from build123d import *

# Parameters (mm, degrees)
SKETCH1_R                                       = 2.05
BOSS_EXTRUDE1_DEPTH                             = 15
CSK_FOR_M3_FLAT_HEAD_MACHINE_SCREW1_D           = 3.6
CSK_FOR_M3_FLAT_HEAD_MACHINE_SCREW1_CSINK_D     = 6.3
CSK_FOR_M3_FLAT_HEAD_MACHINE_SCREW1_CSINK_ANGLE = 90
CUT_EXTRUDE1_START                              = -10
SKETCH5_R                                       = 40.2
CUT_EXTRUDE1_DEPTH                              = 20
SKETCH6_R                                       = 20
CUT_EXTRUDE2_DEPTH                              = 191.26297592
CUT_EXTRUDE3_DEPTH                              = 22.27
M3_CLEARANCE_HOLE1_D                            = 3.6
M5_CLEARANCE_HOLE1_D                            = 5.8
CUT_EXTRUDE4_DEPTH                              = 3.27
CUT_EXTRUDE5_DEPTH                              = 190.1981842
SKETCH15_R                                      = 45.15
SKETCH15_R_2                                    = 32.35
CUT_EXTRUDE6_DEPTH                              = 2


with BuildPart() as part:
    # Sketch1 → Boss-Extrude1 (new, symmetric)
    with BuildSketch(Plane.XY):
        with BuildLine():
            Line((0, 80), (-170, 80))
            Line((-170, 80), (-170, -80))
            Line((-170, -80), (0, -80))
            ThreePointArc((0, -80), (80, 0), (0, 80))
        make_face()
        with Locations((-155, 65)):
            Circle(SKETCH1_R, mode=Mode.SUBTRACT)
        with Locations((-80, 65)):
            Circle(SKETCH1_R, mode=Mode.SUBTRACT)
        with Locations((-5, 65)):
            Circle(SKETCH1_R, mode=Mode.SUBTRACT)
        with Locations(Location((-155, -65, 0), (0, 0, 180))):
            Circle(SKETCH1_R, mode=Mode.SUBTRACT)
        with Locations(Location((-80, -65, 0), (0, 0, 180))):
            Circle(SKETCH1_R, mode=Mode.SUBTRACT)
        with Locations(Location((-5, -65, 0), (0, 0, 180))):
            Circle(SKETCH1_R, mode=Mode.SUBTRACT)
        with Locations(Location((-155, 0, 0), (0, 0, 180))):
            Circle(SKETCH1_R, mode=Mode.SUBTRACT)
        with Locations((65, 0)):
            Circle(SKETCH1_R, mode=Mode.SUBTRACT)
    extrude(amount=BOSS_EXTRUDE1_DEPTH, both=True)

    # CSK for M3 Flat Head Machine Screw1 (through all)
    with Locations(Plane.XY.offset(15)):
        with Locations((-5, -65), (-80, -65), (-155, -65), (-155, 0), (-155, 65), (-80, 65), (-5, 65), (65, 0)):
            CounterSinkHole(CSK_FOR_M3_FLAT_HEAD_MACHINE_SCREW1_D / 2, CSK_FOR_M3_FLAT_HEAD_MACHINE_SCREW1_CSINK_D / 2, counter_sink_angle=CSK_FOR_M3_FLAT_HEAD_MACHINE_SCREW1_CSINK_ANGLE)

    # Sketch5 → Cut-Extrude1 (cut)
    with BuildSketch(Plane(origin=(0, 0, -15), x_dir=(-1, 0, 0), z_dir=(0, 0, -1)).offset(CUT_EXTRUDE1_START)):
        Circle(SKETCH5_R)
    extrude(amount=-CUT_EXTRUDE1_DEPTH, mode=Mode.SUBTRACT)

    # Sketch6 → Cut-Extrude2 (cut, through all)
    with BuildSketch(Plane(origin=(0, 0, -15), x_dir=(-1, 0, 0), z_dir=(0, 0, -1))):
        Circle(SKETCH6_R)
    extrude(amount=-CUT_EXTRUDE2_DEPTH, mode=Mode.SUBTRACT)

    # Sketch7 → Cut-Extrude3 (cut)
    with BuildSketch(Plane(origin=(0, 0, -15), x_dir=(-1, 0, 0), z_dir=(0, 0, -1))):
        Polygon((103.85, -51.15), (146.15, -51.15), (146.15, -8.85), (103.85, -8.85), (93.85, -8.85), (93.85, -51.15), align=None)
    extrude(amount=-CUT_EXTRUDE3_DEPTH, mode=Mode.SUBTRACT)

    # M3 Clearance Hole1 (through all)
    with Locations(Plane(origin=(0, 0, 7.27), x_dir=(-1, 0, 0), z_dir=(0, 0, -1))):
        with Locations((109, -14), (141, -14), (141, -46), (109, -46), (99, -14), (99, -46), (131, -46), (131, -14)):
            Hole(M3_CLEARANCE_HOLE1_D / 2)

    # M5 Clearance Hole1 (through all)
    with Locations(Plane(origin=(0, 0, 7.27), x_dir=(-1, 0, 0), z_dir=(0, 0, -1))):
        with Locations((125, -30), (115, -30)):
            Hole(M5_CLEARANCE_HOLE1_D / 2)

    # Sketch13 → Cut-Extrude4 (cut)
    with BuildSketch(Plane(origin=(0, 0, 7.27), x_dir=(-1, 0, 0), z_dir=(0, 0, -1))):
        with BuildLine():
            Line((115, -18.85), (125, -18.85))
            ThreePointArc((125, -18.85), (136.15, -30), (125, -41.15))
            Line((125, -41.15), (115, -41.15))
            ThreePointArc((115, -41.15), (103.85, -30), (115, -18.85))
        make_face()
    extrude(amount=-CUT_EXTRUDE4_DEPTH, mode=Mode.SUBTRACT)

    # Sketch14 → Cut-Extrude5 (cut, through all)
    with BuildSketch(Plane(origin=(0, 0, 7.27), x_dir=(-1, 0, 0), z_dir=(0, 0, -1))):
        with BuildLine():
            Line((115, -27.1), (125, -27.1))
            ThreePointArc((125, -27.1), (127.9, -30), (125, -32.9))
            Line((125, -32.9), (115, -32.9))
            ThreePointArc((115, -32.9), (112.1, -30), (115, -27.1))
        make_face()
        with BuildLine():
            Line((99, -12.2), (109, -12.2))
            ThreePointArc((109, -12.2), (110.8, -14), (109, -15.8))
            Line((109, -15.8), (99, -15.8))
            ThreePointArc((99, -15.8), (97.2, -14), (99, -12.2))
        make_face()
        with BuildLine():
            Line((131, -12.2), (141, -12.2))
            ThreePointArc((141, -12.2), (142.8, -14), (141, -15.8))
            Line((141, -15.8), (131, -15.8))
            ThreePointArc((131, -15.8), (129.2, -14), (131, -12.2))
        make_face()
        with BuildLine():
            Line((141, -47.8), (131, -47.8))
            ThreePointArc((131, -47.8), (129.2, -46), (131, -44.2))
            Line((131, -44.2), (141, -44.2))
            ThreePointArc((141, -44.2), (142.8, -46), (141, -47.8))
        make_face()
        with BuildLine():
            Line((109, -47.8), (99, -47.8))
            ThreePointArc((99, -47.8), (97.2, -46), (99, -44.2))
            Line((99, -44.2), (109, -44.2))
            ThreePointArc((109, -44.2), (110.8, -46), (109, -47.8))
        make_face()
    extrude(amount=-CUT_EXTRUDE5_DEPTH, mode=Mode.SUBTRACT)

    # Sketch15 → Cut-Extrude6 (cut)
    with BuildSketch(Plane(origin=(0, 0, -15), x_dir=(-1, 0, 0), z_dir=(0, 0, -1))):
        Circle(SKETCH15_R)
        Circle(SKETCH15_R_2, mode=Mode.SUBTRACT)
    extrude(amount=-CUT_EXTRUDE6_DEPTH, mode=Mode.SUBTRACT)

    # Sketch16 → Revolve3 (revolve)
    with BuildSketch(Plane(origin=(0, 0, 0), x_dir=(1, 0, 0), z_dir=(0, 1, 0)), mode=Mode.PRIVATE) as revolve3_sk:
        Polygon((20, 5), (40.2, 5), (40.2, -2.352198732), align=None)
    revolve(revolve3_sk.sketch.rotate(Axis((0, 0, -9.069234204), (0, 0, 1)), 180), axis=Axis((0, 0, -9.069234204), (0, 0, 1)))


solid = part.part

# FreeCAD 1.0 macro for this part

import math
import FreeCAD as App
import Part
import Sketcher
Q = App.Units.Quantity


def add_polygon(sketch, points):
    """Adds a closed chain of lines whose ends are joined by coincident constraints."""
    first, n = sketch.GeometryCount, len(points)
    for a, b in zip(points, points[1:] + points[:1]):
        sketch.addGeometry(Part.LineSegment(App.Vector(*a, 0), App.Vector(*b, 0)), False)
    for i in range(n):
        sketch.addConstraint(Sketcher.Constraint("Coincident", first + i, 2, first + (i + 1) % n, 1))

doc = App.newDocument("Part")
body = doc.addObject("PartDesign::Body", "Body")

sketch1 = doc.addObject("Sketcher::SketchObject", "Sketch")
body.addObject(sketch1)
sketch1.AttachmentSupport = (doc.XY_Plane, [""])
sketch1.MapMode = "FlatFace"
sketch1.addGeometry([
    Part.LineSegment(App.Vector(0, 80, 0), App.Vector(-170, 80, 0)),
    Part.LineSegment(App.Vector(-170, 80, 0), App.Vector(-170, -80, 0)),
    Part.LineSegment(App.Vector(-170, -80, 0), App.Vector(0, -80, 0)),
    Part.ArcOfCircle(Part.Circle(App.Vector(0, 0, 0), App.Vector(0, 0, 1), 80), math.radians(-90), math.radians(90)),
    Part.Circle(App.Vector(-155, -65, 0), App.Vector(0, 0, 1), 2),
    Part.Circle(App.Vector(-80, -65, 0), App.Vector(0, 0, 1), 2),
    Part.Circle(App.Vector(-5, -65, 0), App.Vector(0, 0, 1), 2),
    Part.Circle(App.Vector(-155, 0, 0), App.Vector(0, 0, 1), 2),
    Part.Circle(App.Vector(-155, 65, 0), App.Vector(0, 0, 1), 2),
    Part.Circle(App.Vector(-80, 65, 0), App.Vector(0, 0, 1), 2),
    Part.Circle(App.Vector(65, 0, 0), App.Vector(0, 0, 1), 2),
    Part.Circle(App.Vector(-5, 65, 0), App.Vector(0, 0, 1), 2),
], False)
sketch1.addConstraint([
    Sketcher.Constraint("Coincident", 0, 2, 1, 1),
    Sketcher.Constraint("Coincident", 1, 2, 2, 1),
    Sketcher.Constraint("Tangent", 2, 2, 3, 1),
    Sketcher.Constraint("Tangent", 3, 2, 0, 1),
    Sketcher.Constraint("Horizontal", 0),
    Sketcher.Constraint("Vertical", 1),
    Sketcher.Constraint("Horizontal", 2),
    Sketcher.Constraint("Coincident", 3, 3, -1, 1),
    Sketcher.Constraint("Equal", 4, 5),
    Sketcher.Constraint("Equal", 5, 6),
    Sketcher.Constraint("Equal", 6, 7),
    Sketcher.Constraint("Equal", 7, 8),
    Sketcher.Constraint("Equal", 8, 9),
    Sketcher.Constraint("Equal", 9, 10),
    Sketcher.Constraint("Equal", 10, 11),
    Sketcher.Constraint("Symmetric", 4, 3, 8, 3, -1),
    Sketcher.Constraint("Symmetric", 5, 3, 9, 3, -1),
    Sketcher.Constraint("Symmetric", 6, 3, 11, 3, -1),
    Sketcher.Constraint("PointOnObject", 7, 3, -1),
    Sketcher.Constraint("PointOnObject", 10, 3, -1),
    Sketcher.Constraint("Horizontal", 4, 3, 5, 3),
    Sketcher.Constraint("Horizontal", 5, 3, 6, 3),
    Sketcher.Constraint("Vertical", 4, 3, 7, 3),
    Sketcher.Constraint("Radius", 3, 80.0),
    Sketcher.Constraint("Diameter", 4, 4.1),
    Sketcher.Constraint("DistanceX", 0, 2, 0, 1, 170.0),
    Sketcher.Constraint("DistanceX", 4, 3, -1, 1, 155.0),
    Sketcher.Constraint("DistanceY", 4, 3, -1, 1, 65.0),
    Sketcher.Constraint("DistanceX", 5, 3, -1, 1, 80.0),
    Sketcher.Constraint("DistanceX", 6, 3, -1, 1, 5.0),
    Sketcher.Constraint("DistanceX", -1, 1, 10, 3, 65.0),
])
pad1 = doc.addObject("PartDesign::Pad", "Pad")
body.addObject(pad1)
pad1.Profile = sketch1
pad1.Length = 30
pad1.Midplane = True

sketch2 = doc.addObject("Sketcher::SketchObject", "Sketch001")
body.addObject(sketch2)
sketch2.AttachmentSupport = (doc.XY_Plane, [""])
sketch2.MapMode = "FlatFace"
sketch2.AttachmentOffset = App.Placement(App.Vector(0, 0, 15), App.Rotation())
sketch2.addGeometry([
    Part.Circle(App.Vector(-5, -65, 0), App.Vector(0, 0, 1), 1.8),
    Part.Circle(App.Vector(-80, -65, 0), App.Vector(0, 0, 1), 1.8),
    Part.Circle(App.Vector(-155, -65, 0), App.Vector(0, 0, 1), 1.8),
    Part.Circle(App.Vector(-155, 0, 0), App.Vector(0, 0, 1), 1.8),
    Part.Circle(App.Vector(-155, 65, 0), App.Vector(0, 0, 1), 1.8),
    Part.Circle(App.Vector(-80, 65, 0), App.Vector(0, 0, 1), 1.8),
    Part.Circle(App.Vector(-5, 65, 0), App.Vector(0, 0, 1), 1.8),
    Part.Circle(App.Vector(65, 0, 0), App.Vector(0, 0, 1), 1.8),
], False)
sketch2.addConstraint([
    Sketcher.Constraint("Equal", 0, 1),
    Sketcher.Constraint("Equal", 1, 2),
    Sketcher.Constraint("Equal", 2, 3),
    Sketcher.Constraint("Equal", 3, 4),
    Sketcher.Constraint("Equal", 4, 5),
    Sketcher.Constraint("Equal", 5, 6),
    Sketcher.Constraint("Equal", 6, 7),
    Sketcher.Constraint("Symmetric", 2, 3, 4, 3, -1),
    Sketcher.Constraint("Symmetric", 1, 3, 5, 3, -1),
    Sketcher.Constraint("Symmetric", 0, 3, 6, 3, -1),
    Sketcher.Constraint("PointOnObject", 3, 3, -1),
    Sketcher.Constraint("PointOnObject", 7, 3, -1),
    Sketcher.Constraint("Horizontal", 0, 3, 1, 3),
    Sketcher.Constraint("Horizontal", 1, 3, 2, 3),
    Sketcher.Constraint("Vertical", 2, 3, 3, 3),
    Sketcher.Constraint("Diameter", 0, 3.6),
    Sketcher.Constraint("DistanceX", 0, 3, -1, 1, 5.0),
    Sketcher.Constraint("DistanceY", 0, 3, -1, 1, 65.0),
    Sketcher.Constraint("DistanceX", 1, 3, -1, 1, 80.0),
    Sketcher.Constraint("DistanceX", 2, 3, -1, 1, 155.0),
    Sketcher.Constraint("DistanceX", -1, 1, 7, 3, 65.0),
])
doc.recompute()
hole = doc.addObject("PartDesign::Hole", "Hole")
body.addObject(hole)
hole.Profile = sketch2
hole.ThreadType = "None"
hole.Diameter = 3.6
hole.DepthType = "ThroughAll"
hole.HoleCutType = "Countersink"
hole.HoleCutDiameter = 6.3
hole.HoleCutCountersinkAngle = 90

sketch3 = doc.addObject("Sketcher::SketchObject", "Sketch002")
body.addObject(sketch3)
sketch3.AttachmentSupport = (doc.XY_Plane, [""])
sketch3.MapMode = "FlatFace"
sketch3.AttachmentOffset = App.Placement(App.Vector(0, 0, -5), App.Rotation())
sketch3.addGeometry(Part.Circle(App.Vector(0, 0, 0), App.Vector(0, 0, 1), 40), False)
sketch3.addConstraint([
    Sketcher.Constraint("Coincident", 0, 3, -1, 1),
    Sketcher.Constraint("Diameter", 0, 80.4),
])
pocket1 = doc.addObject("PartDesign::Pocket", "Pocket")
body.addObject(pocket1)
pocket1.Profile = sketch3
pocket1.Length = 20
pocket1.Reversed = True

sketch4 = doc.addObject("Sketcher::SketchObject", "Sketch003")
body.addObject(sketch4)
sketch4.AttachmentSupport = (doc.XY_Plane, [""])
sketch4.MapMode = "FlatFace"
sketch4.AttachmentOffset = App.Placement(App.Vector(0, 0, -15), App.Rotation())
sketch4.addGeometry(Part.Circle(App.Vector(0, 0, 0), App.Vector(0, 0, 1), 20), False)
sketch4.addConstraint([
    Sketcher.Constraint("Coincident", 0, 3, -1, 1),
    Sketcher.Constraint("Diameter", 0, 40.0),
])
pocket2 = doc.addObject("PartDesign::Pocket", "Pocket001")
body.addObject(pocket2)
pocket2.Profile = sketch4
pocket2.Type = "ThroughAll"
pocket2.Reversed = True

sketch5 = doc.addObject("Sketcher::SketchObject", "Sketch004")
body.addObject(sketch5)
sketch5.AttachmentSupport = (doc.XY_Plane, [""])
sketch5.MapMode = "FlatFace"
sketch5.AttachmentOffset = App.Placement(App.Vector(0, 0, -15), App.Rotation())
add_polygon(sketch5, [(-146, -51), (-146, -9), (-94, -9), (-94, -51)])
sketch5.addConstraint([
    Sketcher.Constraint("Vertical", 0),
    Sketcher.Constraint("Horizontal", 1),
    Sketcher.Constraint("Vertical", 2),
    Sketcher.Constraint("Horizontal", 3),
    Sketcher.Constraint("DistanceX", 1, 1, 1, 2, 52.3),
    Sketcher.Constraint("DistanceY", 0, 1, 0, 2, 42.3),
    Sketcher.Constraint("DistanceX", 0, 2, -1, 1, 146.15),
    Sketcher.Constraint("DistanceY", 0, 2, -1, 1, 8.85),
])
pocket3 = doc.addObject("PartDesign::Pocket", "Pocket002")
body.addObject(pocket3)
pocket3.Profile = sketch5
pocket3.Length = 22.27
pocket3.Reversed = True

sketch6 = doc.addObject("Sketcher::SketchObject", "Sketch005")
body.addObject(sketch6)
sketch6.AttachmentSupport = (doc.XY_Plane, [""])
sketch6.MapMode = "FlatFace"
sketch6.AttachmentOffset = App.Placement(App.Vector(0, 0, 7.27), App.Rotation())
sketch6.addGeometry([
    Part.Circle(App.Vector(-109, -14, 0), App.Vector(0, 0, 1), 1.8),
    Part.Circle(App.Vector(-141, -14, 0), App.Vector(0, 0, 1), 1.8),
    Part.Circle(App.Vector(-141, -46, 0), App.Vector(0, 0, 1), 1.8),
    Part.Circle(App.Vector(-109, -46, 0), App.Vector(0, 0, 1), 1.8),
    Part.Circle(App.Vector(-99, -14, 0), App.Vector(0, 0, 1), 1.8),
    Part.Circle(App.Vector(-99, -46, 0), App.Vector(0, 0, 1), 1.8),
    Part.Circle(App.Vector(-131, -46, 0), App.Vector(0, 0, 1), 1.8),
    Part.Circle(App.Vector(-131, -14, 0), App.Vector(0, 0, 1), 1.8),
], False)
sketch6.addConstraint([
    Sketcher.Constraint("Equal", 0, 1),
    Sketcher.Constraint("Equal", 1, 2),
    Sketcher.Constraint("Equal", 2, 3),
    Sketcher.Constraint("Equal", 3, 4),
    Sketcher.Constraint("Equal", 4, 5),
    Sketcher.Constraint("Equal", 5, 6),
    Sketcher.Constraint("Equal", 6, 7),
    Sketcher.Constraint("Horizontal", 0, 3, 1, 3),
    Sketcher.Constraint("Horizontal", 2, 3, 3, 3),
    Sketcher.Constraint("Horizontal", 1, 3, 4, 3),
    Sketcher.Constraint("Horizontal", 3, 3, 5, 3),
    Sketcher.Constraint("Horizontal", 5, 3, 6, 3),
    Sketcher.Constraint("Horizontal", 4, 3, 7, 3),
    Sketcher.Constraint("Vertical", 1, 3, 2, 3),
    Sketcher.Constraint("Vertical", 0, 3, 3, 3),
    Sketcher.Constraint("Vertical", 4, 3, 5, 3),
    Sketcher.Constraint("Vertical", 6, 3, 7, 3),
    Sketcher.Constraint("Diameter", 0, 3.6),
    Sketcher.Constraint("DistanceX", 0, 3, -1, 1, 109.0),
    Sketcher.Constraint("DistanceY", 0, 3, -1, 1, 14.0),
    Sketcher.Constraint("DistanceX", 1, 3, -1, 1, 141.0),
    Sketcher.Constraint("DistanceY", 2, 3, -1, 1, 46.0),
    Sketcher.Constraint("DistanceX", 4, 3, -1, 1, 99.0),
    Sketcher.Constraint("DistanceX", 6, 3, -1, 1, 131.0),
])
doc.recompute()
hole2 = doc.addObject("PartDesign::Hole", "Hole001")
body.addObject(hole2)
hole2.Profile = sketch6
hole2.ThreadType = "None"
hole2.Diameter = 3.6
hole2.DepthType = "ThroughAll"
hole2.Reversed = True

sketch7 = doc.addObject("Sketcher::SketchObject", "Sketch006")
body.addObject(sketch7)
sketch7.AttachmentSupport = (doc.XY_Plane, [""])
sketch7.MapMode = "FlatFace"
sketch7.AttachmentOffset = App.Placement(App.Vector(0, 0, 7.27), App.Rotation())
sketch7.addGeometry([
    Part.Circle(App.Vector(-125, -30, 0), App.Vector(0, 0, 1), 2.9),
    Part.Circle(App.Vector(-115, -30, 0), App.Vector(0, 0, 1), 2.9),
], False)
sketch7.addConstraint([
    Sketcher.Constraint("Equal", 0, 1),
    Sketcher.Constraint("Horizontal", 0, 3, 1, 3),
    Sketcher.Constraint("Diameter", 0, 5.8),
    Sketcher.Constraint("DistanceX", 0, 3, -1, 1, 125.0),
    Sketcher.Constraint("DistanceY", 0, 3, -1, 1, 30.0),
    Sketcher.Constraint("DistanceX", 1, 3, -1, 1, 115.0),
])
doc.recompute()
hole3 = doc.addObject("PartDesign::Hole", "Hole002")
body.addObject(hole3)
hole3.Profile = sketch7
hole3.ThreadType = "None"
hole3.Diameter = 5.8
hole3.DepthType = "ThroughAll"
hole3.Reversed = True

sketch8 = doc.addObject("Sketcher::SketchObject", "Sketch007")
body.addObject(sketch8)
sketch8.AttachmentSupport = (doc.XY_Plane, [""])
sketch8.MapMode = "FlatFace"
sketch8.AttachmentOffset = App.Placement(App.Vector(0, 0, 7.27), App.Rotation())
sketch8.addGeometry([
    Part.LineSegment(App.Vector(-125, -19, 0), App.Vector(-115, -19, 0)),
    Part.ArcOfCircle(Part.Circle(App.Vector(-115, -30, 0), App.Vector(0, 0, 1), 11), math.radians(-90), math.radians(90)),
    Part.LineSegment(App.Vector(-115, -41, 0), App.Vector(-125, -41, 0)),
    Part.ArcOfCircle(Part.Circle(App.Vector(-125, -30, 0), App.Vector(0, 0, 1), 11), math.radians(90), math.radians(270)),
], False)
sketch8.addConstraint([
    Sketcher.Constraint("Tangent", 0, 2, 1, 2),
    Sketcher.Constraint("Tangent", 1, 1, 2, 1),
    Sketcher.Constraint("Tangent", 2, 2, 3, 2),
    Sketcher.Constraint("Tangent", 3, 1, 0, 1),
    Sketcher.Constraint("Horizontal", 0),
    Sketcher.Constraint("Horizontal", 2),
    Sketcher.Constraint("DistanceX", 0, 1, 0, 2, 10.0),
    Sketcher.Constraint("Radius", 1, 11.15),
    Sketcher.Constraint("DistanceX", 1, 3, -1, 1, 115.0),
    Sketcher.Constraint("DistanceY", 1, 3, -1, 1, 30.0),
])
pocket4 = doc.addObject("PartDesign::Pocket", "Pocket003")
body.addObject(pocket4)
pocket4.Profile = sketch8
pocket4.Length = 3.27
pocket4.Reversed = True

sketch9 = doc.addObject("Sketcher::SketchObject", "Sketch008")
body.addObject(sketch9)
sketch9.AttachmentSupport = (doc.XY_Plane, [""])
sketch9.MapMode = "FlatFace"
sketch9.AttachmentOffset = App.Placement(App.Vector(0, 0, 7.27), App.Rotation())
sketch9.addGeometry([
    Part.LineSegment(App.Vector(-125, -27.1, 0), App.Vector(-115, -27.1, 0)),
    Part.ArcOfCircle(Part.Circle(App.Vector(-115, -30, 0), App.Vector(0, 0, 1), 2.9), math.radians(-90), math.radians(90)),
    Part.LineSegment(App.Vector(-115, -32.9, 0), App.Vector(-125, -32.9, 0)),
    Part.ArcOfCircle(Part.Circle(App.Vector(-125, -30, 0), App.Vector(0, 0, 1), 2.9), math.radians(90), math.radians(270)),
    Part.LineSegment(App.Vector(-109, -12.2, 0), App.Vector(-99, -12.2, 0)),
    Part.ArcOfCircle(Part.Circle(App.Vector(-99, -14, 0), App.Vector(0, 0, 1), 1.8), math.radians(-90), math.radians(90)),
    Part.LineSegment(App.Vector(-99, -15.8, 0), App.Vector(-109, -15.8, 0)),
    Part.ArcOfCircle(Part.Circle(App.Vector(-109, -14, 0), App.Vector(0, 0, 1), 1.8), math.radians(90), math.radians(270)),
    Part.LineSegment(App.Vector(-141, -12.2, 0), App.Vector(-131, -12.2, 0)),
    Part.ArcOfCircle(Part.Circle(App.Vector(-131, -14, 0), App.Vector(0, 0, 1), 1.8), math.radians(-90), math.radians(90)),
    Part.LineSegment(App.Vector(-131, -15.8, 0), App.Vector(-141, -15.8, 0)),
    Part.ArcOfCircle(Part.Circle(App.Vector(-141, -14, 0), App.Vector(0, 0, 1), 1.8), math.radians(90), math.radians(270)),
    Part.LineSegment(App.Vector(-131, -47.8, 0), App.Vector(-141, -47.8, 0)),
    Part.ArcOfCircle(Part.Circle(App.Vector(-141, -46, 0), App.Vector(0, 0, 1), 1.8), math.radians(90), math.radians(270)),
    Part.LineSegment(App.Vector(-141, -44.2, 0), App.Vector(-131, -44.2, 0)),
    Part.ArcOfCircle(Part.Circle(App.Vector(-131, -46, 0), App.Vector(0, 0, 1), 1.8), math.radians(-90), math.radians(90)),
    Part.LineSegment(App.Vector(-99, -47.8, 0), App.Vector(-109, -47.8, 0)),
    Part.ArcOfCircle(Part.Circle(App.Vector(-109, -46, 0), App.Vector(0, 0, 1), 1.8), math.radians(90), math.radians(270)),
    Part.LineSegment(App.Vector(-109, -44.2, 0), App.Vector(-99, -44.2, 0)),
    Part.ArcOfCircle(Part.Circle(App.Vector(-99, -46, 0), App.Vector(0, 0, 1), 1.8), math.radians(-90), math.radians(90)),
], False)
sketch9.addConstraint([
    Sketcher.Constraint("Tangent", 0, 2, 1, 2),
    Sketcher.Constraint("Tangent", 1, 1, 2, 1),
    Sketcher.Constraint("Tangent", 2, 2, 3, 2),
    Sketcher.Constraint("Tangent", 3, 1, 0, 1),
    Sketcher.Constraint("Tangent", 4, 2, 5, 2),
    Sketcher.Constraint("Tangent", 5, 1, 6, 1),
    Sketcher.Constraint("Tangent", 6, 2, 7, 2),
    Sketcher.Constraint("Tangent", 7, 1, 4, 1),
    Sketcher.Constraint("Tangent", 8, 2, 9, 2),
    Sketcher.Constraint("Tangent", 9, 1, 10, 1),
    Sketcher.Constraint("Tangent", 10, 2, 11, 2),
    Sketcher.Constraint("Tangent", 11, 1, 8, 1),
    Sketcher.Constraint("Tangent", 12, 2, 13, 2),
    Sketcher.Constraint("Tangent", 13, 1, 14, 1),
    Sketcher.Constraint("Tangent", 14, 2, 15, 2),
    Sketcher.Constraint("Tangent", 15, 1, 12, 1),
    Sketcher.Constraint("Tangent", 16, 2, 17, 2),
    Sketcher.Constraint("Tangent", 17, 1, 18, 1),
    Sketcher.Constraint("Tangent", 18, 2, 19, 2),
    Sketcher.Constraint("Tangent", 19, 1, 16, 1),
    Sketcher.Constraint("Horizontal", 0),
    Sketcher.Constraint("Horizontal", 2),
    Sketcher.Constraint("Horizontal", 4),
    Sketcher.Constraint("Horizontal", 6),
    Sketcher.Constraint("Horizontal", 8),
    Sketcher.Constraint("Horizontal", 10),
    Sketcher.Constraint("Horizontal", 12),
    Sketcher.Constraint("Horizontal", 14),
    Sketcher.Constraint("Horizontal", 16),
    Sketcher.Constraint("Horizontal", 18),
    Sketcher.Constraint("Equal", 7, 9),
    Sketcher.Constraint("Equal", 11, 13),
    Sketcher.Constraint("Equal", 15, 17),
    Sketcher.Constraint("Horizontal", 7, 3, 9, 3),
    Sketcher.Constraint("Horizontal", 15, 3, 17, 3),
    Sketcher.Constraint("Vertical", 11, 3, 13, 3),
    Sketcher.Constraint("Vertical", 9, 3, 15, 3),
    Sketcher.Constraint("Vertical", 7, 3, 17, 3),
    Sketcher.Constraint("Vertical", 5, 3, 19, 3),
    Sketcher.Constraint("Equal", 2, 4),
    Sketcher.Constraint("Equal", 6, 8),
    Sketcher.Constraint("Radius", 1, 2.9),
    Sketcher.Constraint("Radius", 5, 1.8),
    Sketcher.Constraint("DistanceX", 0, 1, 0, 2, 10.0),
    Sketcher.Constraint("DistanceX", 1, 3, -1, 1, 115.0),
    Sketcher.Constraint("DistanceY", 1, 3, -1, 1, 30.0),
    Sketcher.Constraint("DistanceX", 5, 3, -1, 1, 99.0),
    Sketcher.Constraint("DistanceY", 5, 3, -1, 1, 14.0),
    Sketcher.Constraint("DistanceX", 9, 3, -1, 1, 131.0),
    Sketcher.Constraint("DistanceY", 13, 3, -1, 1, 46.0),
])
pocket5 = doc.addObject("PartDesign::Pocket", "Pocket004")
body.addObject(pocket5)
pocket5.Profile = sketch9
pocket5.Type = "ThroughAll"
pocket5.Reversed = True

sketch10 = doc.addObject("Sketcher::SketchObject", "Sketch009")
body.addObject(sketch10)
sketch10.AttachmentSupport = (doc.XY_Plane, [""])
sketch10.MapMode = "FlatFace"
sketch10.AttachmentOffset = App.Placement(App.Vector(0, 0, -15), App.Rotation())
sketch10.addGeometry([
    Part.Circle(App.Vector(0, 0, 0), App.Vector(0, 0, 1), 45),
    Part.Circle(App.Vector(0, 0, 0), App.Vector(0, 0, 1), 32),
], False)
sketch10.addConstraint([
    Sketcher.Constraint("Coincident", 0, 3, -1, 1),
    Sketcher.Constraint("Coincident", 1, 3, -1, 1),
    Sketcher.Constraint("Diameter", 0, 90.3),
    Sketcher.Constraint("Diameter", 1, 64.7),
])
pocket6 = doc.addObject("PartDesign::Pocket", "Pocket005")
body.addObject(pocket6)
pocket6.Profile = sketch10
pocket6.Length = 2
pocket6.Reversed = True

sketch11 = doc.addObject("Sketcher::SketchObject", "Sketch010")
body.addObject(sketch11)
sketch11.AttachmentSupport = (doc.XZ_Plane, [""])
sketch11.MapMode = "FlatFace"
add_polygon(sketch11, [(40, -5), (20, -5), (40, 2)])
sketch11.addConstraint([
    Sketcher.Constraint("Horizontal", 0),
    Sketcher.Constraint("Vertical", 2),
    Sketcher.Constraint("Angle", 1, Q("20 deg")),
    Sketcher.Constraint("DistanceX", 0, 2, 0, 1, 20.2),
    Sketcher.Constraint("DistanceX", -1, 1, 0, 2, 20.0),
    Sketcher.Constraint("DistanceY", 0, 2, -1, 1, 5.0),
])
revolution = doc.addObject("PartDesign::Revolution", "Revolution")
body.addObject(revolution)
revolution.Profile = sketch11
revolution.ReferenceAxis = (sketch11, ["V_Axis"])
revolution.Angle = 360

doc.recompute()
